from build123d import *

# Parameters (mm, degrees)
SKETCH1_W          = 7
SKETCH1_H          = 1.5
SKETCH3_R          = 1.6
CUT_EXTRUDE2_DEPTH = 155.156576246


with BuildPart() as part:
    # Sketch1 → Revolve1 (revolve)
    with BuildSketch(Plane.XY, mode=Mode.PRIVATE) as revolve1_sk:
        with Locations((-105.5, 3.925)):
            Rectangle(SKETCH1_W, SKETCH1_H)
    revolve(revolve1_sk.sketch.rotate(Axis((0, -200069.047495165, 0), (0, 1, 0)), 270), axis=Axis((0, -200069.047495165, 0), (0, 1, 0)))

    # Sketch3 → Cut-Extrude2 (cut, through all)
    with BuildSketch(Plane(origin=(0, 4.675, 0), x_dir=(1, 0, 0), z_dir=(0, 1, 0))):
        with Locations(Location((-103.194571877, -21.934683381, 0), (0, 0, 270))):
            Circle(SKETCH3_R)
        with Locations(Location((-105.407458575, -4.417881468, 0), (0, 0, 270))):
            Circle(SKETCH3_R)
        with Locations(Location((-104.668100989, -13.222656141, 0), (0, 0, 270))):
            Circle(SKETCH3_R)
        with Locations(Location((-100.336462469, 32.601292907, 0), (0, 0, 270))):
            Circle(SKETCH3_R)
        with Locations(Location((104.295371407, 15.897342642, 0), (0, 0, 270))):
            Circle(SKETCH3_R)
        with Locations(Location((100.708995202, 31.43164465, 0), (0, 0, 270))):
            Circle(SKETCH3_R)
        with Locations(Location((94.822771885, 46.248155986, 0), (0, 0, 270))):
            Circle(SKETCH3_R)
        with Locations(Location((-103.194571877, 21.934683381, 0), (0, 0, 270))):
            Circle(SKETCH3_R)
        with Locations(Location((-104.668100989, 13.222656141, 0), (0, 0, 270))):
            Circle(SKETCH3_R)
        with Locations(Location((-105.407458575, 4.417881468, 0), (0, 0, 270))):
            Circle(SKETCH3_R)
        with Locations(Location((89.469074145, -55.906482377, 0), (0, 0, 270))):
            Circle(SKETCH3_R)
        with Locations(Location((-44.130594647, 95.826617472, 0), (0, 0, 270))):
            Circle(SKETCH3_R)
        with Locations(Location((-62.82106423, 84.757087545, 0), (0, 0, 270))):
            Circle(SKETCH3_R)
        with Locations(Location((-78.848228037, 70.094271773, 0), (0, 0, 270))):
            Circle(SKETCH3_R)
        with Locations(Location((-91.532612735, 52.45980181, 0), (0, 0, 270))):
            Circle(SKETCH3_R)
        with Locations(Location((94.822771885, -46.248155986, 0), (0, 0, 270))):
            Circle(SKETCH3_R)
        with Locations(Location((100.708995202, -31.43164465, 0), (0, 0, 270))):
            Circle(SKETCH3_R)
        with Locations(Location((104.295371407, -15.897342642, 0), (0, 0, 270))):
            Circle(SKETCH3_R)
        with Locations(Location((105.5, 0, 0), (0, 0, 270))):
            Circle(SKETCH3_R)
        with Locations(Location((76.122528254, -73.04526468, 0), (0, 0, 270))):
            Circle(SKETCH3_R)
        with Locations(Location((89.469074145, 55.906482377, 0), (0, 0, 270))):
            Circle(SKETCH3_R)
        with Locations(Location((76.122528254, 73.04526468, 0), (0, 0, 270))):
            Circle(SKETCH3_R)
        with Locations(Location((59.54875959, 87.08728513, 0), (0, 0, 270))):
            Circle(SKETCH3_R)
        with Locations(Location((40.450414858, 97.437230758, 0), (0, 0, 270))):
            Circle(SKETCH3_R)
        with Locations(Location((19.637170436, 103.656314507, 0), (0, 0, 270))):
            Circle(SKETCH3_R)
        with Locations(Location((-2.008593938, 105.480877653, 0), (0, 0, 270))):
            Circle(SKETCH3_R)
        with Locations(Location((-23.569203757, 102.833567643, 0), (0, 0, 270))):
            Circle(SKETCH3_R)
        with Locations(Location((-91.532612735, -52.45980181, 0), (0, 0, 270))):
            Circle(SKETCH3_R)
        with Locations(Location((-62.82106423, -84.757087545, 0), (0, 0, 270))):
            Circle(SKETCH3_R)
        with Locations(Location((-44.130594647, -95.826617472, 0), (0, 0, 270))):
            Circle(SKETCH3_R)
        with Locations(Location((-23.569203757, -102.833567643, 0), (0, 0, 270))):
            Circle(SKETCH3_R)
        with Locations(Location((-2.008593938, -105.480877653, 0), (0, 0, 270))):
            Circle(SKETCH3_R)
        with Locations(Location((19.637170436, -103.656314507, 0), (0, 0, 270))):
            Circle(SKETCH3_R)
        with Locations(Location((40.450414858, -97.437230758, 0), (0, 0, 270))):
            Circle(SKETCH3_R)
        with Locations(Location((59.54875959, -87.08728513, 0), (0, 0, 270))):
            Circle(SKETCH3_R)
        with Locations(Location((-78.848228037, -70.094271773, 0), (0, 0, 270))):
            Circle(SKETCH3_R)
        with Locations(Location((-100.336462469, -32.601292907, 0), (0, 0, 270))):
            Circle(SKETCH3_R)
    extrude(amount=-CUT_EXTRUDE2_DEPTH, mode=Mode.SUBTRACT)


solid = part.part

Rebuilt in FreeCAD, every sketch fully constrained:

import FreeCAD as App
import Part
import Sketcher
from FreeCAD import Vector
Q = App.Units.Quantity


def add_polygon(sketch, points):
    """Adds a closed chain of lines whose ends are joined by coincident constraints."""
    first, n = sketch.GeometryCount, len(points)
    for a, b in zip(points, points[1:] + points[:1]):
        sketch.addGeometry(Part.LineSegment(App.Vector(*a, 0), App.Vector(*b, 0)), False)
    for i in range(n):
        sketch.addConstraint(Sketcher.Constraint("Coincident", first + i, 2, first + (i + 1) % n, 1))

doc = App.newDocument("Part")
body = doc.addObject("PartDesign::Body", "Body")

sketch1 = body.newObject("Sketcher::SketchObject", "Sketch")
sketch1.AttachmentSupport = (doc.getObject("XY_Plane"), [""])
sketch1.MapMode = "FlatFace"
add_polygon(sketch1, [(-109, 4.7), (-109, 3.2), (-102, 3.2), (-102, 4.7)])
sketch1.addConstraint(Sketcher.Constraint("Vertical", 0))
sketch1.addConstraint(Sketcher.Constraint("Horizontal", 1))
sketch1.addConstraint(Sketcher.Constraint("Vertical", 2))
sketch1.addConstraint(Sketcher.Constraint("Horizontal", 3))
sketch1.addConstraint(Sketcher.Constraint("DistanceX", 1, 1, 1, 2, Q("7 mm")))
sketch1.addConstraint(Sketcher.Constraint("DistanceY", 0, 2, 0, 1, Q("1.5 mm")))
sketch1.addConstraint(Sketcher.Constraint("DistanceX", 0, 2, -1, 1, Q("109 mm")))
sketch1.addConstraint(Sketcher.Constraint("DistanceY", -1, 1, 0, 2, Q("3.175 mm")))
revolution = body.newObject("PartDesign::Revolution", "Revolution")
revolution.Profile = sketch1
revolution.ReferenceAxis = (sketch1, ["V_Axis"])
revolution.Angle = 360

sketch2 = body.newObject("Sketcher::SketchObject", "Sketch001")
sketch2.AttachmentSupport = (doc.getObject("XZ_Plane"), [""])
sketch2.MapMode = "FlatFace"
sketch2.AttachmentOffset = App.Placement(Vector(0, 0, -4.675), App.Rotation())
sketch2.addGeometry(Part.Circle(Vector(-103.2, 21.9, 0), Vector(0, 0, 1), 1.6), False)
sketch2.addGeometry(Part.Circle(Vector(-105.4, 4.4, 0), Vector(0, 0, 1), 1.6), False)
sketch2.addGeometry(Part.Circle(Vector(-104.7, 13.2, 0), Vector(0, 0, 1), 1.6), False)
sketch2.addGeometry(Part.Circle(Vector(-100.3, -32.6, 0), Vector(0, 0, 1), 1.6), False)
sketch2.addGeometry(Part.Circle(Vector(104.3, -15.9, 0), Vector(0, 0, 1), 1.6), False)
sketch2.addGeometry(Part.Circle(Vector(100.7, -31.4, 0), Vector(0, 0, 1), 1.6), False)
sketch2.addGeometry(Part.Circle(Vector(94.8, -46.2, 0), Vector(0, 0, 1), 1.6), False)
sketch2.addGeometry(Part.Circle(Vector(-103.2, -21.9, 0), Vector(0, 0, 1), 1.6), False)
sketch2.addGeometry(Part.Circle(Vector(-104.7, -13.2, 0), Vector(0, 0, 1), 1.6), False)
sketch2.addGeometry(Part.Circle(Vector(-105.4, -4.4, 0), Vector(0, 0, 1), 1.6), False)
sketch2.addGeometry(Part.Circle(Vector(89.5, 55.9, 0), Vector(0, 0, 1), 1.6), False)
sketch2.addGeometry(Part.Circle(Vector(-44.1, -95.8, 0), Vector(0, 0, 1), 1.6), False)
sketch2.addGeometry(Part.Circle(Vector(-62.8, -84.8, 0), Vector(0, 0, 1), 1.6), False)
sketch2.addGeometry(Part.Circle(Vector(-78.8, -70.1, 0), Vector(0, 0, 1), 1.6), False)
sketch2.addGeometry(Part.Circle(Vector(-91.5, -52.5, 0), Vector(0, 0, 1), 1.6), False)
sketch2.addGeometry(Part.Circle(Vector(94.8, 46.2, 0), Vector(0, 0, 1), 1.6), False)
sketch2.addGeometry(Part.Circle(Vector(100.7, 31.4, 0), Vector(0, 0, 1), 1.6), False)
sketch2.addGeometry(Part.Circle(Vector(104.3, 15.9, 0), Vector(0, 0, 1), 1.6), False)
sketch2.addGeometry(Part.Circle(Vector(105.5, 0, 0), Vector(0, 0, 1), 1.6), False)
sketch2.addGeometry(Part.Circle(Vector(76.1, 73, 0), Vector(0, 0, 1), 1.6), False)
sketch2.addGeometry(Part.Circle(Vector(89.5, -55.9, 0), Vector(0, 0, 1), 1.6), False)
sketch2.addGeometry(Part.Circle(Vector(76.1, -73, 0), Vector(0, 0, 1), 1.6), False)
sketch2.addGeometry(Part.Circle(Vector(59.5, -87.1, 0), Vector(0, 0, 1), 1.6), False)
sketch2.addGeometry(Part.Circle(Vector(40.5, -97.4, 0), Vector(0, 0, 1), 1.6), False)
sketch2.addGeometry(Part.Circle(Vector(19.6, -103.7, 0), Vector(0, 0, 1), 1.6), False)
sketch2.addGeometry(Part.Circle(Vector(-2, -105.5, 0), Vector(0, 0, 1), 1.6), False)
sketch2.addGeometry(Part.Circle(Vector(-23.6, -102.8, 0), Vector(0, 0, 1), 1.6), False)
sketch2.addGeometry(Part.Circle(Vector(-91.5, 52.5, 0), Vector(0, 0, 1), 1.6), False)
sketch2.addGeometry(Part.Circle(Vector(-62.8, 84.8, 0), Vector(0, 0, 1), 1.6), False)
sketch2.addGeometry(Part.Circle(Vector(-44.1, 95.8, 0), Vector(0, 0, 1), 1.6), False)
sketch2.addGeometry(Part.Circle(Vector(-23.6, 102.8, 0), Vector(0, 0, 1), 1.6), False)
sketch2.addGeometry(Part.Circle(Vector(-2, 105.5, 0), Vector(0, 0, 1), 1.6), False)
sketch2.addGeometry(Part.Circle(Vector(19.6, 103.7, 0), Vector(0, 0, 1), 1.6), False)
sketch2.addGeometry(Part.Circle(Vector(40.5, 97.4, 0), Vector(0, 0, 1), 1.6), False)
sketch2.addGeometry(Part.Circle(Vector(59.5, 87.1, 0), Vector(0, 0, 1), 1.6), False)
sketch2.addGeometry(Part.Circle(Vector(-78.8, 70.1, 0), Vector(0, 0, 1), 1.6), False)
sketch2.addGeometry(Part.Circle(Vector(-100.3, 32.6, 0), Vector(0, 0, 1), 1.6), False)
sketch2.addConstraint(Sketcher.Constraint("Equal", 0, 1))
sketch2.addConstraint(Sketcher.Constraint("Equal", 1, 2))
sketch2.addConstraint(Sketcher.Constraint("Equal", 2, 3))
sketch2.addConstraint(Sketcher.Constraint("Equal", 3, 4))
sketch2.addConstraint(Sketcher.Constraint("Equal", 4, 5))
sketch2.addConstraint(Sketcher.Constraint("Equal", 5, 6))
sketch2.addConstraint(Sketcher.Constraint("Equal", 6, 7))
sketch2.addConstraint(Sketcher.Constraint("Equal", 7, 8))
sketch2.addConstraint(Sketcher.Constraint("Equal", 8, 9))
sketch2.addConstraint(Sketcher.Constraint("Equal", 9, 10))
sketch2.addConstraint(Sketcher.Constraint("Equal", 10, 11))
sketch2.addConstraint(Sketcher.Constraint("Equal", 11, 12))
sketch2.addConstraint(Sketcher.Constraint("Equal", 12, 13))
sketch2.addConstraint(Sketcher.Constraint("Equal", 13, 14))
sketch2.addConstraint(Sketcher.Constraint("Equal", 14, 15))
sketch2.addConstraint(Sketcher.Constraint("Equal", 15, 16))
sketch2.addConstraint(Sketcher.Constraint("Equal", 16, 17))
sketch2.addConstraint(Sketcher.Constraint("Equal", 17, 18))
sketch2.addConstraint(Sketcher.Constraint("Equal", 18, 19))
sketch2.addConstraint(Sketcher.Constraint("Equal", 19, 20))
sketch2.addConstraint(Sketcher.Constraint("Equal", 20, 21))
sketch2.addConstraint(Sketcher.Constraint("Equal", 21, 22))
sketch2.addConstraint(Sketcher.Constraint("Equal", 22, 23))
sketch2.addConstraint(Sketcher.Constraint("Equal", 23, 24))
sketch2.addConstraint(Sketcher.Constraint("Equal", 24, 25))
sketch2.addConstraint(Sketcher.Constraint("Equal", 25, 26))
sketch2.addConstraint(Sketcher.Constraint("Equal", 26, 27))
sketch2.addConstraint(Sketcher.Constraint("Equal", 27, 28))
sketch2.addConstraint(Sketcher.Constraint("Equal", 28, 29))
sketch2.addConstraint(Sketcher.Constraint("Equal", 29, 30))
sketch2.addConstraint(Sketcher.Constraint("Equal", 30, 31))
sketch2.addConstraint(Sketcher.Constraint("Equal", 31, 32))
sketch2.addConstraint(Sketcher.Constraint("Equal", 32, 33))
sketch2.addConstraint(Sketcher.Constraint("Equal", 33, 34))
sketch2.addConstraint(Sketcher.Constraint("Equal", 34, 35))
sketch2.addConstraint(Sketcher.Constraint("Equal", 35, 36))
sketch2.addConstraint(Sketcher.Constraint("Symmetric", 0, 3, 7, 3, -1))
sketch2.addConstraint(Sketcher.Constraint("Symmetric", 2, 3, 8, 3, -1))
sketch2.addConstraint(Sketcher.Constraint("Symmetric", 1, 3, 9, 3, -1))
sketch2.addConstraint(Sketcher.Constraint("Symmetric", 6, 3, 15, 3, -1))
sketch2.addConstraint(Sketcher.Constraint("Symmetric", 5, 3, 16, 3, -1))
sketch2.addConstraint(Sketcher.Constraint("Symmetric", 4, 3, 17, 3, -1))
sketch2.addConstraint(Sketcher.Constraint("Symmetric", 10, 3, 20, 3, -1))
sketch2.addConstraint(Sketcher.Constraint("Symmetric", 19, 3, 21, 3, -1))
sketch2.addConstraint(Sketcher.Constraint("Symmetric", 14, 3, 27, 3, -1))
sketch2.addConstraint(Sketcher.Constraint("Symmetric", 12, 3, 28, 3, -1))
sketch2.addConstraint(Sketcher.Constraint("Symmetric", 11, 3, 29, 3, -1))
sketch2.addConstraint(Sketcher.Constraint("Symmetric", 26, 3, 30, 3, -1))
sketch2.addConstraint(Sketcher.Constraint("Symmetric", 25, 3, 31, 3, -1))
sketch2.addConstraint(Sketcher.Constraint("Symmetric", 24, 3, 32, 3, -1))
sketch2.addConstraint(Sketcher.Constraint("Symmetric", 23, 3, 33, 3, -1))
sketch2.addConstraint(Sketcher.Constraint("Symmetric", 22, 3, 34, 3, -1))
sketch2.addConstraint(Sketcher.Constraint("Symmetric", 13, 3, 35, 3, -1))
sketch2.addConstraint(Sketcher.Constraint("Symmetric", 3, 3, 36, 3, -1))
sketch2.addConstraint(Sketcher.Constraint("PointOnObject", 18, 3, -1))
sketch2.addConstraint(Sketcher.Constraint("Diameter", 0, Q("3.2 mm")))
sketch2.addConstraint(Sketcher.Constraint("DistanceX", -1, 1, 18, 3, Q("105.5 mm")))
sketch2.addConstraint(Sketcher.Constraint("DistanceY", 4, 3, 2, 3, Q("29.119999 mm")))
sketch2.addConstraint(Sketcher.Constraint("DistanceX", 11, 3, 25, 3, Q("42.122001 mm")))
sketch2.addConstraint(Sketcher.Constraint("DistanceX", 2, 3, -1, 1, Q("104.668101 mm")))
sketch2.addConstraint(Sketcher.Constraint("DistanceY", 14, 3, -1, 1, Q("52.459802 mm")))
sketch2.addConstraint(Sketcher.Constraint("DistanceY", 1, 3, 0, 3, Q("17.516802 mm")))
sketch2.addConstraint(Sketcher.Constraint("DistanceY", 5, 3, 2, 3, Q("44.654301 mm")))
sketch2.addConstraint(Sketcher.Constraint("DistanceX", 6, 3, 4, 3, Q("9.4726 mm")))
sketch2.addConstraint(Sketcher.Constraint("DistanceY", 0, 3, 10, 3, Q("33.971799 mm")))
sketch2.addConstraint(Sketcher.Constraint("DistanceY", 11, 3, 1, 3, Q("100.244499 mm")))
sketch2.addConstraint(Sketcher.Constraint("DistanceX", 3, 3, 12, 3, Q("37.515398 mm")))
sketch2.addConstraint(Sketcher.Constraint("DistanceY", 4, 3, 15, 3, Q("62.145499 mm")))
sketch2.addConstraint(Sketcher.Constraint("DistanceX", 0, 3, -1, 1, Q("103.194572 mm")))
sketch2.addConstraint(Sketcher.Constraint("DistanceX", 1, 3, -1, 1, Q("105.407459 mm")))
sketch2.addConstraint(Sketcher.Constraint("DistanceY", -1, 1, 1, 3, Q("4.417881 mm")))
sketch2.addConstraint(Sketcher.Constraint("DistanceX", -1, 1, 4, 3, Q("104.295371 mm")))
sketch2.addConstraint(Sketcher.Constraint("DistanceX", 13, 3, -1, 1, Q("78.848228 mm")))
sketch2.addConstraint(Sketcher.Constraint("DistanceY", 13, 3, -1, 1, Q("70.094272 mm")))
sketch2.addConstraint(Sketcher.Constraint("DistanceX", -1, 1, 19, 3, Q("76.122528 mm")))
sketch2.addConstraint(Sketcher.Constraint("DistanceX", -1, 1, 22, 3, Q("59.54876 mm")))
sketch2.addConstraint(Sketcher.Constraint("DistanceY", 23, 3, -1, 1, Q("97.437231 mm")))
sketch2.addConstraint(Sketcher.Constraint("DistanceX", -1, 1, 24, 3, Q("19.63717 mm")))
sketch2.addConstraint(Sketcher.Constraint("DistanceX", 2, 3, 3, 3, Q("4.331639 mm")))
sketch2.addConstraint(Sketcher.Constraint("DistanceY", 3, 3, 2, 3, Q("45.823949 mm")))
sketch2.addConstraint(Sketcher.Constraint("DistanceY", 5, 3, 0, 3, Q("53.366328 mm")))
sketch2.addConstraint(Sketcher.Constraint("DistanceX", 10, 3, 5, 3, Q("11.239921 mm")))
sketch2.addConstraint(Sketcher.Constraint("DistanceX", 12, 3, 11, 3, Q("18.69047 mm")))
sketch2.addConstraint(Sketcher.Constraint("DistanceY", 11, 3, 12, 3, Q("11.06953 mm")))
sketch2.addConstraint(Sketcher.Constraint("DistanceX", 3, 3, 14, 3, Q("8.80385 mm")))
sketch2.addConstraint(Sketcher.Constraint("DistanceY", 15, 3, 19, 3, Q("26.797109 mm")))
sketch2.addConstraint(Sketcher.Constraint("DistanceY", 22, 3, 21, 3, Q("14.04202 mm")))
sketch2.addConstraint(Sketcher.Constraint("DistanceX", 23, 3, 20, 3, Q("49.018659 mm")))
sketch2.addConstraint(Sketcher.Constraint("DistanceX", 11, 3, 23, 3, Q("84.58101 mm")))
sketch2.addConstraint(Sketcher.Constraint("DistanceY", 24, 3, 22, 3, Q("16.569029 mm")))
sketch2.addConstraint(Sketcher.Constraint("DistanceY", 25, 3, 11, 3, Q("9.65426 mm")))
sketch2.addConstraint(Sketcher.Constraint("DistanceX", 11, 3, 26, 3, Q("20.561391 mm")))
sketch2.addConstraint(Sketcher.Constraint("DistanceY", 26, 3, 11, 3, Q("7.00695 mm")))
pocket1 = body.newObject("PartDesign::Pocket", "Pocket")
pocket1.Profile = sketch2
pocket1.Type = "ThroughAll"
pocket1.Reversed = True

doc.recompute()
